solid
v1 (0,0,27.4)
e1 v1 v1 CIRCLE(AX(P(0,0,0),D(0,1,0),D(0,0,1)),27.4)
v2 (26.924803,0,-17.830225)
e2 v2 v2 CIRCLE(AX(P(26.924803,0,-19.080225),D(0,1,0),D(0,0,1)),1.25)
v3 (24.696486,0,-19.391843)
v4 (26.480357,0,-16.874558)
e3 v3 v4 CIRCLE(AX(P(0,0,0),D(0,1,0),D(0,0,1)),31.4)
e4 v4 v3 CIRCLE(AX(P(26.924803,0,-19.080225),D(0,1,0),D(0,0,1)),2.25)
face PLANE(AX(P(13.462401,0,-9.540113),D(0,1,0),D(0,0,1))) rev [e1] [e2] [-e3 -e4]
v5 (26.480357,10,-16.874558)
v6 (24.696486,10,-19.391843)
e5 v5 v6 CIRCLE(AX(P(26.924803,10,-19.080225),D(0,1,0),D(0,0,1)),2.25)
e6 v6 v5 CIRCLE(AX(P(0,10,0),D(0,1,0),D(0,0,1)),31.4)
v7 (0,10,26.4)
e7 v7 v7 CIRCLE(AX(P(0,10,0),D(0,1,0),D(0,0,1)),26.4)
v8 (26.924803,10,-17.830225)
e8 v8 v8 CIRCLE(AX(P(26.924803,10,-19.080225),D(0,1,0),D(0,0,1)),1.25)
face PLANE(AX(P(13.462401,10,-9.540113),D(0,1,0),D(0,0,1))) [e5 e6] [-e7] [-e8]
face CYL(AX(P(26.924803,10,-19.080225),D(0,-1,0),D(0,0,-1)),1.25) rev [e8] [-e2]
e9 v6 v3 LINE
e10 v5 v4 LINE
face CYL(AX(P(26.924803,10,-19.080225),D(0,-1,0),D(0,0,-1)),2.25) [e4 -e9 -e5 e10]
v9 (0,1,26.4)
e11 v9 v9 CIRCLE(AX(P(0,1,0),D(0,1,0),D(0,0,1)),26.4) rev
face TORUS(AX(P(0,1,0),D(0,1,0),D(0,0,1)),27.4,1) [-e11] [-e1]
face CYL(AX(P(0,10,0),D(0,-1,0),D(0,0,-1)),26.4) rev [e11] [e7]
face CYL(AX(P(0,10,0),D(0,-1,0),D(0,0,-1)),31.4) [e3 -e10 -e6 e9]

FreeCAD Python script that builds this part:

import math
import FreeCAD as App
import Part
import Sketcher
Q = App.Units.Quantity


def edges_at(feature, points):
    """Names of the edges that pass closest to the given points."""
    edges = feature.Shape.Edges
    near = lambda p: min(range(len(edges)), key=lambda i: edges[i].distToShape(Part.Vertex(*p))[0])
    return sorted({f"Edge{near(p) + 1}" for p in points})

doc = App.newDocument("Part")
params = doc.addObject("Spreadsheet::Sheet", "Params")
for row, (alias, value) in enumerate([
    ("sketch1_diameter", "52.8 mm"),
    ("sketch1_diameter2", "2.5 mm"),
    ("sketch1_radius", "31.4 mm"),
    ("sketch1_radius2", "2.25 mm"),
    ("pad1_length", "10 mm"),
    ("fillet_radius", "1 mm"),
], start=1):
    params.set(f"A{row}", alias)
    params.set(f"B{row}", "=" + value)
    params.setAlias(f"B{row}", alias)

body = doc.addObject("PartDesign::Body", "Body")

sketch1 = body.newObject("Sketcher::SketchObject", "Sketch")
sketch1.AttachmentSupport = (doc.getObject("XZ_Plane"), [""])
sketch1.MapMode = "FlatFace"
sketch1.addGeometry(Part.ArcOfCircle(Part.Circle(App.Vector(0, 0, 0), App.Vector(0, 0, 1), 31.4), math.radians(-32.507249), math.radians(321.860765)), False)
sketch1.addGeometry(Part.ArcOfCircle(Part.Circle(App.Vector(26.924803, -19.080225, 0), App.Vector(0, 0, 1), 2.25), math.radians(-172.039135), math.radians(101.392651)), False)
sketch1.addGeometry(Part.Circle(App.Vector(0, 0, 0), App.Vector(0, 0, 1), 26.4), False)
sketch1.addGeometry(Part.Circle(App.Vector(26.924803, -19.080225, 0), App.Vector(0, 0, 1), 1.25), False)
sketch1.addConstraint(Sketcher.Constraint("Coincident", 0, 1, 1, 2))
sketch1.addConstraint(Sketcher.Constraint("Coincident", 1, 1, 0, 2))
sketch1.addConstraint(Sketcher.Constraint("Coincident", 0, 3, -1, 1))
sketch1.addConstraint(Sketcher.Constraint("Coincident", 2, 3, -1, 1))
sketch1.addConstraint(Sketcher.Constraint("Coincident", 3, 3, 1, 3))
sketch1.addConstraint(Sketcher.Constraint("Diameter", 2, Q("52.8 mm")))
sketch1.addConstraint(Sketcher.Constraint("Diameter", 3, Q("2.5 mm")))
sketch1.addConstraint(Sketcher.Constraint("Radius", 0, Q("31.4 mm")))
sketch1.addConstraint(Sketcher.Constraint("Radius", 1, Q("2.25 mm")))
sketch1.addConstraint(Sketcher.Constraint("DistanceY", 0, 1, -1, 1, Q("16.874558 mm")))
sketch1.addConstraint(Sketcher.Constraint("DistanceX", 1, 1, 0, 1, Q("1.78387 mm")))
sketch1.setExpression("Constraints[5]", "Params.sketch1_diameter")
sketch1.setExpression("Constraints[6]", "Params.sketch1_diameter2")
sketch1.setExpression("Constraints[7]", "Params.sketch1_radius")
sketch1.setExpression("Constraints[8]", "Params.sketch1_radius2")
pad1 = body.newObject("PartDesign::Pad", "Pad")
pad1.Profile = sketch1
pad1.setExpression("Length", "Params.pad1_length")
pad1.Reversed = True
doc.recompute()

fillet = body.newObject("PartDesign::Fillet", "Fillet")
fillet.Base = (pad1, edges_at(pad1, [(0, 0, -26.4)]))
fillet.setExpression("Radius", "Params.fillet_radius")

doc.recompute()
